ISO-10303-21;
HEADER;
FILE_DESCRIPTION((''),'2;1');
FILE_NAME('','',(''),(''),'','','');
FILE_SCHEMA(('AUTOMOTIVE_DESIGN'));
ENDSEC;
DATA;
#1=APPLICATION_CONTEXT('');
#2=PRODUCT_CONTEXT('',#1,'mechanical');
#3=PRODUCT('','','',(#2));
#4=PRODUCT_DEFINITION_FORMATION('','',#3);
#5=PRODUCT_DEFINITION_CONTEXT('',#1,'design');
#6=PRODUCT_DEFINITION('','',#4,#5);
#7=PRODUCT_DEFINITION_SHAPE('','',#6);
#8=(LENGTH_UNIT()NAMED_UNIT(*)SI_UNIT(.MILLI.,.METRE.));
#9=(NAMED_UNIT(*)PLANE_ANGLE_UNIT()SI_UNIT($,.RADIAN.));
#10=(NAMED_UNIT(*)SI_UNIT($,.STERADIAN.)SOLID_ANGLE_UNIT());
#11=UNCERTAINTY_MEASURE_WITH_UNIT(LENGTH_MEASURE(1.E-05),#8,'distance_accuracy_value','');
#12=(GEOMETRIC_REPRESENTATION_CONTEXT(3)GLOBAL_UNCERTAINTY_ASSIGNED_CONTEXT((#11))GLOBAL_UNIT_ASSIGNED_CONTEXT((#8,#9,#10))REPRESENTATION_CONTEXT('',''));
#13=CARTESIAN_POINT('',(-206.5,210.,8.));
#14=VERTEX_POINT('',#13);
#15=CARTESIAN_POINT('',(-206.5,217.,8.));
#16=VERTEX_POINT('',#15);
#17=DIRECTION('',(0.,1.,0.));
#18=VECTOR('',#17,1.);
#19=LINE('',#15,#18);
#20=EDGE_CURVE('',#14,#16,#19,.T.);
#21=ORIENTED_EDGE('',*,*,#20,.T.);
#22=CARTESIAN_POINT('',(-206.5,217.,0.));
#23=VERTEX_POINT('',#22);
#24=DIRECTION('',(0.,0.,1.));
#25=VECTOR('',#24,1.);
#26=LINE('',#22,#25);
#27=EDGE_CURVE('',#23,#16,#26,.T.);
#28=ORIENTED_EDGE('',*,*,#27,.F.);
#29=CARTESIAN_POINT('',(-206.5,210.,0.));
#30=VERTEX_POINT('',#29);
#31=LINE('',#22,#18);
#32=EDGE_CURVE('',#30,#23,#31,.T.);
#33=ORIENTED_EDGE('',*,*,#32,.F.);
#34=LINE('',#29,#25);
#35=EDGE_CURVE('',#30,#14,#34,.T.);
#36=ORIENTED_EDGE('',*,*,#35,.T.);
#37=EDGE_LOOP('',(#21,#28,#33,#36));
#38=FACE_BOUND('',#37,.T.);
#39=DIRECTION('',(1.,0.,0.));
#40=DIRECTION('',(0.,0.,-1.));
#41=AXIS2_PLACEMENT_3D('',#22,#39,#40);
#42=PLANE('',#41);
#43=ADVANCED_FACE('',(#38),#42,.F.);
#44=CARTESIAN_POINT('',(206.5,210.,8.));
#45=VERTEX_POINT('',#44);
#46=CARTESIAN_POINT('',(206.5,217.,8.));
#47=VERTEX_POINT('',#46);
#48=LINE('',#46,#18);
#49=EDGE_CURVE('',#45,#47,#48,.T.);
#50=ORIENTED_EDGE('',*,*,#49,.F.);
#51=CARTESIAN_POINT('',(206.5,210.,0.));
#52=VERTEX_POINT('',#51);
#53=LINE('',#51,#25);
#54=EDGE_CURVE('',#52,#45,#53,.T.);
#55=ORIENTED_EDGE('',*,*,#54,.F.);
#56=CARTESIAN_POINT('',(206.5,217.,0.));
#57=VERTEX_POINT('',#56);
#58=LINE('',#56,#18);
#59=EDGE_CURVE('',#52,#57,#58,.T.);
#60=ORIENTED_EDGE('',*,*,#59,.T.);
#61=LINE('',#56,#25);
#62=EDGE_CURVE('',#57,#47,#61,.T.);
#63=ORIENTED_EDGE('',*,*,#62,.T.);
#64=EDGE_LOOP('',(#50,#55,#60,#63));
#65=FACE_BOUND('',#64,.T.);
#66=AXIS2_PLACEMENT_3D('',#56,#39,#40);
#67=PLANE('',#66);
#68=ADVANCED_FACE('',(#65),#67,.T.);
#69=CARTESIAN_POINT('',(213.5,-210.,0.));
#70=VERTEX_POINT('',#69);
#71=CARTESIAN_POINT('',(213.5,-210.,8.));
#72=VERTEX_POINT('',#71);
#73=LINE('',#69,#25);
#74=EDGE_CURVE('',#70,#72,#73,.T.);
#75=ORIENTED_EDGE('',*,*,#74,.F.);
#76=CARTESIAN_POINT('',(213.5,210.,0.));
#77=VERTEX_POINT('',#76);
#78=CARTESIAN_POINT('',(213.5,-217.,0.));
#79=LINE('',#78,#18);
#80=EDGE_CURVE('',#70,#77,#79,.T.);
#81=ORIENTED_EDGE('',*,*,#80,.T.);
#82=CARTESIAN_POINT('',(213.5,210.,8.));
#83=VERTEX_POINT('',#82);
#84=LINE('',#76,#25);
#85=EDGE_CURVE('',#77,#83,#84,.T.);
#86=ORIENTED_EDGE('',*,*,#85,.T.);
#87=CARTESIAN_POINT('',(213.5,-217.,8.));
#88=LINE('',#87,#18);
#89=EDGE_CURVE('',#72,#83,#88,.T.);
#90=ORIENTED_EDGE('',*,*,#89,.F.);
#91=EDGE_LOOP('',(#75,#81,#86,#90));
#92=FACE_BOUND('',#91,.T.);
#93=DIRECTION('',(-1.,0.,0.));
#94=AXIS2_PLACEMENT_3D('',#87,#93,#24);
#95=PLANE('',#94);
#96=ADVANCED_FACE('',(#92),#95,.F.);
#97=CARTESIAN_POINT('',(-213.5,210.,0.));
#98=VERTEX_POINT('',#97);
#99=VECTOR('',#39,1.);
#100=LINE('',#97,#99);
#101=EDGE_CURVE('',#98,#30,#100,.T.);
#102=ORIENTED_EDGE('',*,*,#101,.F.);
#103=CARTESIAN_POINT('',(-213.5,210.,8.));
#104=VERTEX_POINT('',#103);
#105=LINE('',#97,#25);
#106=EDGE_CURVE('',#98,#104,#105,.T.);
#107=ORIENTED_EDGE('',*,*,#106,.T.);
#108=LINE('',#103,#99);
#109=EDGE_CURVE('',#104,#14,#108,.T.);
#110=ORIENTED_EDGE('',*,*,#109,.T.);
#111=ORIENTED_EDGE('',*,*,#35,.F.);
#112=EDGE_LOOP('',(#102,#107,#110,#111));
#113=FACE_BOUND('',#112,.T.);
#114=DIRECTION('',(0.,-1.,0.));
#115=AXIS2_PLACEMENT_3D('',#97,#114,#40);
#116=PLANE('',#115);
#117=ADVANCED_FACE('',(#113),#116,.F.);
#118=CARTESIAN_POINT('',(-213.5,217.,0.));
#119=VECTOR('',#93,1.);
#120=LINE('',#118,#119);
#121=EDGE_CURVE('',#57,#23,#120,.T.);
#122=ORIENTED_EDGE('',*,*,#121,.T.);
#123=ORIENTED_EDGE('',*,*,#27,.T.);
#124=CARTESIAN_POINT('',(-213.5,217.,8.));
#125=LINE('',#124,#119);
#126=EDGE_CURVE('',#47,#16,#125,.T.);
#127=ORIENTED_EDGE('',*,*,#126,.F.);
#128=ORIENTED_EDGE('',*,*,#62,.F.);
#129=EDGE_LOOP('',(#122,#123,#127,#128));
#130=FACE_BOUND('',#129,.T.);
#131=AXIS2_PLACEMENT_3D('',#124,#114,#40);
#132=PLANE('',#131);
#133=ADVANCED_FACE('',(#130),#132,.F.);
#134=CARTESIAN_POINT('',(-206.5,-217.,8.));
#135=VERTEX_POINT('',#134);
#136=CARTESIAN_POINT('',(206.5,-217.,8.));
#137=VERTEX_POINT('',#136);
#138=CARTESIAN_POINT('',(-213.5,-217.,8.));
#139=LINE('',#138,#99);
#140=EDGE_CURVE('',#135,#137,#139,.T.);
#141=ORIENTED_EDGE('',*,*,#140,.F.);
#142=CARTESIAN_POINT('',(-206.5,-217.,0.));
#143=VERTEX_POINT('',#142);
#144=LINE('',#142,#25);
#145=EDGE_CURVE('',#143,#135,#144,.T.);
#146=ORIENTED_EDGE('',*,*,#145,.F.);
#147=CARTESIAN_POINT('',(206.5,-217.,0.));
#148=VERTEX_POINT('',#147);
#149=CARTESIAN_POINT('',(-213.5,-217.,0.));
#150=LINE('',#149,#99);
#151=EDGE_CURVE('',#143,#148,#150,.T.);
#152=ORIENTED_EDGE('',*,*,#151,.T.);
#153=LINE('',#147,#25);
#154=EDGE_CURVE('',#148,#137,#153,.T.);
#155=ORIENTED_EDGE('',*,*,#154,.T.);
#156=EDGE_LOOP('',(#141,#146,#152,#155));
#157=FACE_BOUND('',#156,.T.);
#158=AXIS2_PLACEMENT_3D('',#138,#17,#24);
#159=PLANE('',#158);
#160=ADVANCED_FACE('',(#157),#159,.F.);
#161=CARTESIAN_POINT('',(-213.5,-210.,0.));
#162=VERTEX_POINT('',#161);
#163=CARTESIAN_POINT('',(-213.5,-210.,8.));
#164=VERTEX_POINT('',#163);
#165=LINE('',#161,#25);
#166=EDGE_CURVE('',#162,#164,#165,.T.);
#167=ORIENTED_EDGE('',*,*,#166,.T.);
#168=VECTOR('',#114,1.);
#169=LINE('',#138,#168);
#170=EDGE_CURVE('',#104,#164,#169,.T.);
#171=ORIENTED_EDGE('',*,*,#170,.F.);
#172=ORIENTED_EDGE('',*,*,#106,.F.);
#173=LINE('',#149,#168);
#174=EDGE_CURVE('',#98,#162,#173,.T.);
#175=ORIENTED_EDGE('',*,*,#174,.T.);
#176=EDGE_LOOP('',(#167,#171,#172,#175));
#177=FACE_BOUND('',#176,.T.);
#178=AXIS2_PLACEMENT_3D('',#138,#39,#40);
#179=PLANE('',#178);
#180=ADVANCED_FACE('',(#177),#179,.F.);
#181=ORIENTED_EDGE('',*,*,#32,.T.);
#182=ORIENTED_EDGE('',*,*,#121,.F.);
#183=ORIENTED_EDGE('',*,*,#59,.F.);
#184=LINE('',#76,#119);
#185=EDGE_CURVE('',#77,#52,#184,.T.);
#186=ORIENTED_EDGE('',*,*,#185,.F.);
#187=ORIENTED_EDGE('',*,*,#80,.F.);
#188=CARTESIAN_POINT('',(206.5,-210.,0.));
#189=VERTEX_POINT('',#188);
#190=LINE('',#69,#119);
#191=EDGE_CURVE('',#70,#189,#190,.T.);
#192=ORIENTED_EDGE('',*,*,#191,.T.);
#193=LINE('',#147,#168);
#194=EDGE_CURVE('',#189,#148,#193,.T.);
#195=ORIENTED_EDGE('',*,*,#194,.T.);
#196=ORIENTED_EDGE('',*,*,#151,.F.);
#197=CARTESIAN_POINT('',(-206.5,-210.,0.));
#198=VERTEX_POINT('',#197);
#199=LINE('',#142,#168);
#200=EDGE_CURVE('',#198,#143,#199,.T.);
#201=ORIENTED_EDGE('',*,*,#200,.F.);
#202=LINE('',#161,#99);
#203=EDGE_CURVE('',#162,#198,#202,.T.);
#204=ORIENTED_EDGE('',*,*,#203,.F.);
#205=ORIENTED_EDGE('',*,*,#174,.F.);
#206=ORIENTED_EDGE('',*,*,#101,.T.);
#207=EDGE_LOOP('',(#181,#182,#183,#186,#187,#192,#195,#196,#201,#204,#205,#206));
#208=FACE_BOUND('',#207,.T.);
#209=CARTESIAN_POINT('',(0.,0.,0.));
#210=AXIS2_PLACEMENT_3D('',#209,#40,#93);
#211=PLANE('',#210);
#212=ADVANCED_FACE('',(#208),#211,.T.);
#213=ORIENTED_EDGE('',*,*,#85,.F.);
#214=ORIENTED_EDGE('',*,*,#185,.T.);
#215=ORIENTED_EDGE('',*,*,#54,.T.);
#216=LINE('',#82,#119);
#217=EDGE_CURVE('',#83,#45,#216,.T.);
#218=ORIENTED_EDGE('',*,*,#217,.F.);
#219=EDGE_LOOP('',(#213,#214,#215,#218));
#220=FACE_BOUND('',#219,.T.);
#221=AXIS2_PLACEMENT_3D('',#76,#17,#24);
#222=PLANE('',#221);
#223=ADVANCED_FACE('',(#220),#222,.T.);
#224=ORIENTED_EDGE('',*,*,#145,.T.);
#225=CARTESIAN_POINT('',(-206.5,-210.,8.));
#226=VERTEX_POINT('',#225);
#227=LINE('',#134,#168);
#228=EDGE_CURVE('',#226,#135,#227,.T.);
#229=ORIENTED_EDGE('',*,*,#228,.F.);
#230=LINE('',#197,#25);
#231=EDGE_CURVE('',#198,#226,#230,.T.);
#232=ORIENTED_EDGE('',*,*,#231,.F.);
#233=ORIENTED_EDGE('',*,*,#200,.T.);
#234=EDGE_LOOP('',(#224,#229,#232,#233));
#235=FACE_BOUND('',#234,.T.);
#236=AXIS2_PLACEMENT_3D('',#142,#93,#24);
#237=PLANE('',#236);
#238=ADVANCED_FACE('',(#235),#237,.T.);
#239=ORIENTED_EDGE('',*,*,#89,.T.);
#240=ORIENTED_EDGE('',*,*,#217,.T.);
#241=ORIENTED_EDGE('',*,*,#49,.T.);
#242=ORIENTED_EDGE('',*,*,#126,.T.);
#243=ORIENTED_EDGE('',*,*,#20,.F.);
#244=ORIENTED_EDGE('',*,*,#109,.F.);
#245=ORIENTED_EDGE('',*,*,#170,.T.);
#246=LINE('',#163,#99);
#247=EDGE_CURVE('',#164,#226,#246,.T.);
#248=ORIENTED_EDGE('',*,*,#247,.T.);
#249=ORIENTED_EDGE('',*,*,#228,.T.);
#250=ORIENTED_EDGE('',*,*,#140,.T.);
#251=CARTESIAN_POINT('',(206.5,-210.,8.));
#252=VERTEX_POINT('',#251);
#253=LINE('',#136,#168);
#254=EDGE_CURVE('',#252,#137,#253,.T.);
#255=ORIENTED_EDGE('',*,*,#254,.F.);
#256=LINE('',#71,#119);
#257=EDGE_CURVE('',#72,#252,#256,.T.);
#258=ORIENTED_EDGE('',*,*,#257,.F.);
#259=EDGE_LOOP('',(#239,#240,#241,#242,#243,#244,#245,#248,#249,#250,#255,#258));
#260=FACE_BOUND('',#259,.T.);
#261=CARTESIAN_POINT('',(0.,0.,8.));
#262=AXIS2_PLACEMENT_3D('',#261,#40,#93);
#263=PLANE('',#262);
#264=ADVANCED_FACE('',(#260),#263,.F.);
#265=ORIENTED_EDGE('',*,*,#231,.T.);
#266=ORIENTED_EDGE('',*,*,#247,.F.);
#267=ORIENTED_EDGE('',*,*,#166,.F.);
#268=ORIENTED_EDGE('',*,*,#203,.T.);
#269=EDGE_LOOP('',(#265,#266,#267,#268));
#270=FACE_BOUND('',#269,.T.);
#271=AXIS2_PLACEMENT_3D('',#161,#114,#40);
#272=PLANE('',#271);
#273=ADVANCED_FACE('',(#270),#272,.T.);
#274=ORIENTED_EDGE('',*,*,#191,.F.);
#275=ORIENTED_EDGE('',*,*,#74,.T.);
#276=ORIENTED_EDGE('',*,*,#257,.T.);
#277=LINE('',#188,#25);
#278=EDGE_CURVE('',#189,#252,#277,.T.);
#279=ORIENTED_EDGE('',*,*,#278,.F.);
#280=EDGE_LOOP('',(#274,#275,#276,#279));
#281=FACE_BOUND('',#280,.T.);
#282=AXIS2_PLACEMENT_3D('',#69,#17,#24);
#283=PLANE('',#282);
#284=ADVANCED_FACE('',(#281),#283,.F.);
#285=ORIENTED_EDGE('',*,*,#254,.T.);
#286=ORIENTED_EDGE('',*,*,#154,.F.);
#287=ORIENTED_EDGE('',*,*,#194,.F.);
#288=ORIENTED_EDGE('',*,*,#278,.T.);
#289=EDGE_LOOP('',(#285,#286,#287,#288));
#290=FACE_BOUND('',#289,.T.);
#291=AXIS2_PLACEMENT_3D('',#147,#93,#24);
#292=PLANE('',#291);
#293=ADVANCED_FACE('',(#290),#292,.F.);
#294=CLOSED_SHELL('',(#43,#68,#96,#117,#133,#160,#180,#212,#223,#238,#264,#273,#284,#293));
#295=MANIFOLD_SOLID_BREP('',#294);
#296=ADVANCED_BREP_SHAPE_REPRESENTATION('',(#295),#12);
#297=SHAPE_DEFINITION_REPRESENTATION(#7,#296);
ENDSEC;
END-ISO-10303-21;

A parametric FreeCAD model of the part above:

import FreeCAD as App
import Part
import Sketcher

V = App.Vector
Q = App.Units.Quantity

doc = App.newDocument("Part")
body = doc.addObject("PartDesign::Body", "Body")

# Sketch on XY plane
sketch1 = body.newObject("Sketcher::SketchObject", "Sketch")
sketch1.AttachmentSupport = (doc.getObject("XY_Plane"), [""])
sketch1.MapMode = "FlatFace"
sketch1.addGeometry([
    Part.LineSegment(V(-214, 217, 0), V(-214, -217, 0)),
    Part.LineSegment(V(-214, -217, 0), V(214, -217, 0)),
    Part.LineSegment(V(214, -217, 0), V(214, 217, 0)),
    Part.LineSegment(V(214, 217, 0), V(-214, 217, 0)),
], False)
sketch1.addConstraint([
    Sketcher.Constraint("Coincident", 0, 2, 1, 1),
    Sketcher.Constraint("Coincident", 1, 2, 2, 1),
    Sketcher.Constraint("Coincident", 2, 2, 3, 1),
    Sketcher.Constraint("Coincident", 3, 2, 0, 1),
    Sketcher.Constraint("Vertical", 0),
    Sketcher.Constraint("Horizontal", 1),
    Sketcher.Constraint("Vertical", 2),
    Sketcher.Constraint("Horizontal", 3),
    Sketcher.Constraint("Symmetric", 0, 2, 2, 2, -1, 1),
    Sketcher.Constraint("DistanceX", 1, 1, 1, 2, Q("427 mm")),
    Sketcher.Constraint("DistanceY", 0, 2, 0, 1, Q("434 mm")),
])
pad1 = body.newObject("PartDesign::Pad", "Pad")
pad1.Profile = sketch1
pad1.Length = 8

# Sketch on XY plane
sketch2 = body.newObject("Sketcher::SketchObject", "Sketch001")
sketch2.AttachmentSupport = (doc.getObject("XY_Plane"), [""])
sketch2.MapMode = "FlatFace"
sketch2.AttachmentOffset = App.Placement(V(0, 0, 8), App.Rotation())
sketch2.addGeometry([
    Part.LineSegment(V(-214, 217, 0), V(-214, 210, 0)),
    Part.LineSegment(V(-214, 210, 0), V(-206, 210, 0)),
    Part.LineSegment(V(-206, 210, 0), V(-206, 217, 0)),
    Part.LineSegment(V(-206, 217, 0), V(-214, 217, 0)),
], False)
sketch2.addConstraint([
    Sketcher.Constraint("Coincident", 0, 2, 1, 1),
    Sketcher.Constraint("Coincident", 1, 2, 2, 1),
    Sketcher.Constraint("Coincident", 2, 2, 3, 1),
    Sketcher.Constraint("Coincident", 3, 2, 0, 1),
    Sketcher.Constraint("Vertical", 0),
    Sketcher.Constraint("Horizontal", 1),
    Sketcher.Constraint("Vertical", 2),
    Sketcher.Constraint("Horizontal", 3),
    Sketcher.Constraint("Equal", 3, 0),
    Sketcher.Constraint("DistanceX", 1, 1, 1, 2, Q("7 mm")),
    Sketcher.Constraint("DistanceY", -1, 1, 0, 2, Q("210 mm")),
    Sketcher.Constraint("DistanceX", 0, 2, -1, 1, Q("213.5 mm")),
])
pocket1 = body.newObject("PartDesign::Pocket", "Pocket")
pocket1.Profile = sketch2
pocket1.Length = 8
doc.recompute()

mirrored = body.newObject("PartDesign::Mirrored", "Mirrored")
mirrored.Originals = [pocket1]
mirrored.MirrorPlane = (doc.getObject("YZ_Plane"), [""])
body.Tip = mirrored
doc.recompute()

mirrored2 = body.newObject("PartDesign::Mirrored", "Mirrored001")
mirrored2.Originals = [pocket1]
mirrored2.MirrorPlane = (doc.getObject("XZ_Plane"), [""])
body.Tip = mirrored2

# Sketch on XY plane
sketch3 = body.newObject("Sketcher::SketchObject", "Sketch002")
sketch3.AttachmentSupport = (doc.getObject("XY_Plane"), [""])
sketch3.MapMode = "FlatFace"
sketch3.AttachmentOffset = App.Placement(V(0, 0, 8), App.Rotation())
sketch3.addGeometry([
    Part.LineSegment(V(214, -217, 0), V(214, -210, 0)),
    Part.LineSegment(V(214, -210, 0), V(206, -210, 0)),
    Part.LineSegment(V(206, -210, 0), V(206, -217, 0)),
    Part.LineSegment(V(206, -217, 0), V(214, -217, 0)),
], False)
sketch3.addConstraint([
    Sketcher.Constraint("Coincident", 0, 2, 1, 1),
    Sketcher.Constraint("Coincident", 1, 2, 2, 1),
    Sketcher.Constraint("Coincident", 2, 2, 3, 1),
    Sketcher.Constraint("Coincident", 3, 2, 0, 1),
    Sketcher.Constraint("Vertical", 0),
    Sketcher.Constraint("Horizontal", 1),
    Sketcher.Constraint("Vertical", 2),
    Sketcher.Constraint("Horizontal", 3),
    Sketcher.Constraint("Equal", 3, 0),
    Sketcher.Constraint("DistanceX", 1, 2, 1, 1, Q("7 mm")),
    Sketcher.Constraint("DistanceY", 0, 2, -1, 1, Q("210 mm")),
    Sketcher.Constraint("DistanceX", -1, 1, 0, 2, Q("213.5 mm")),
])
pocket2 = body.newObject("PartDesign::Pocket", "Pocket001")
pocket2.Profile = sketch3
pocket2.Length = 8

doc.recompute()
